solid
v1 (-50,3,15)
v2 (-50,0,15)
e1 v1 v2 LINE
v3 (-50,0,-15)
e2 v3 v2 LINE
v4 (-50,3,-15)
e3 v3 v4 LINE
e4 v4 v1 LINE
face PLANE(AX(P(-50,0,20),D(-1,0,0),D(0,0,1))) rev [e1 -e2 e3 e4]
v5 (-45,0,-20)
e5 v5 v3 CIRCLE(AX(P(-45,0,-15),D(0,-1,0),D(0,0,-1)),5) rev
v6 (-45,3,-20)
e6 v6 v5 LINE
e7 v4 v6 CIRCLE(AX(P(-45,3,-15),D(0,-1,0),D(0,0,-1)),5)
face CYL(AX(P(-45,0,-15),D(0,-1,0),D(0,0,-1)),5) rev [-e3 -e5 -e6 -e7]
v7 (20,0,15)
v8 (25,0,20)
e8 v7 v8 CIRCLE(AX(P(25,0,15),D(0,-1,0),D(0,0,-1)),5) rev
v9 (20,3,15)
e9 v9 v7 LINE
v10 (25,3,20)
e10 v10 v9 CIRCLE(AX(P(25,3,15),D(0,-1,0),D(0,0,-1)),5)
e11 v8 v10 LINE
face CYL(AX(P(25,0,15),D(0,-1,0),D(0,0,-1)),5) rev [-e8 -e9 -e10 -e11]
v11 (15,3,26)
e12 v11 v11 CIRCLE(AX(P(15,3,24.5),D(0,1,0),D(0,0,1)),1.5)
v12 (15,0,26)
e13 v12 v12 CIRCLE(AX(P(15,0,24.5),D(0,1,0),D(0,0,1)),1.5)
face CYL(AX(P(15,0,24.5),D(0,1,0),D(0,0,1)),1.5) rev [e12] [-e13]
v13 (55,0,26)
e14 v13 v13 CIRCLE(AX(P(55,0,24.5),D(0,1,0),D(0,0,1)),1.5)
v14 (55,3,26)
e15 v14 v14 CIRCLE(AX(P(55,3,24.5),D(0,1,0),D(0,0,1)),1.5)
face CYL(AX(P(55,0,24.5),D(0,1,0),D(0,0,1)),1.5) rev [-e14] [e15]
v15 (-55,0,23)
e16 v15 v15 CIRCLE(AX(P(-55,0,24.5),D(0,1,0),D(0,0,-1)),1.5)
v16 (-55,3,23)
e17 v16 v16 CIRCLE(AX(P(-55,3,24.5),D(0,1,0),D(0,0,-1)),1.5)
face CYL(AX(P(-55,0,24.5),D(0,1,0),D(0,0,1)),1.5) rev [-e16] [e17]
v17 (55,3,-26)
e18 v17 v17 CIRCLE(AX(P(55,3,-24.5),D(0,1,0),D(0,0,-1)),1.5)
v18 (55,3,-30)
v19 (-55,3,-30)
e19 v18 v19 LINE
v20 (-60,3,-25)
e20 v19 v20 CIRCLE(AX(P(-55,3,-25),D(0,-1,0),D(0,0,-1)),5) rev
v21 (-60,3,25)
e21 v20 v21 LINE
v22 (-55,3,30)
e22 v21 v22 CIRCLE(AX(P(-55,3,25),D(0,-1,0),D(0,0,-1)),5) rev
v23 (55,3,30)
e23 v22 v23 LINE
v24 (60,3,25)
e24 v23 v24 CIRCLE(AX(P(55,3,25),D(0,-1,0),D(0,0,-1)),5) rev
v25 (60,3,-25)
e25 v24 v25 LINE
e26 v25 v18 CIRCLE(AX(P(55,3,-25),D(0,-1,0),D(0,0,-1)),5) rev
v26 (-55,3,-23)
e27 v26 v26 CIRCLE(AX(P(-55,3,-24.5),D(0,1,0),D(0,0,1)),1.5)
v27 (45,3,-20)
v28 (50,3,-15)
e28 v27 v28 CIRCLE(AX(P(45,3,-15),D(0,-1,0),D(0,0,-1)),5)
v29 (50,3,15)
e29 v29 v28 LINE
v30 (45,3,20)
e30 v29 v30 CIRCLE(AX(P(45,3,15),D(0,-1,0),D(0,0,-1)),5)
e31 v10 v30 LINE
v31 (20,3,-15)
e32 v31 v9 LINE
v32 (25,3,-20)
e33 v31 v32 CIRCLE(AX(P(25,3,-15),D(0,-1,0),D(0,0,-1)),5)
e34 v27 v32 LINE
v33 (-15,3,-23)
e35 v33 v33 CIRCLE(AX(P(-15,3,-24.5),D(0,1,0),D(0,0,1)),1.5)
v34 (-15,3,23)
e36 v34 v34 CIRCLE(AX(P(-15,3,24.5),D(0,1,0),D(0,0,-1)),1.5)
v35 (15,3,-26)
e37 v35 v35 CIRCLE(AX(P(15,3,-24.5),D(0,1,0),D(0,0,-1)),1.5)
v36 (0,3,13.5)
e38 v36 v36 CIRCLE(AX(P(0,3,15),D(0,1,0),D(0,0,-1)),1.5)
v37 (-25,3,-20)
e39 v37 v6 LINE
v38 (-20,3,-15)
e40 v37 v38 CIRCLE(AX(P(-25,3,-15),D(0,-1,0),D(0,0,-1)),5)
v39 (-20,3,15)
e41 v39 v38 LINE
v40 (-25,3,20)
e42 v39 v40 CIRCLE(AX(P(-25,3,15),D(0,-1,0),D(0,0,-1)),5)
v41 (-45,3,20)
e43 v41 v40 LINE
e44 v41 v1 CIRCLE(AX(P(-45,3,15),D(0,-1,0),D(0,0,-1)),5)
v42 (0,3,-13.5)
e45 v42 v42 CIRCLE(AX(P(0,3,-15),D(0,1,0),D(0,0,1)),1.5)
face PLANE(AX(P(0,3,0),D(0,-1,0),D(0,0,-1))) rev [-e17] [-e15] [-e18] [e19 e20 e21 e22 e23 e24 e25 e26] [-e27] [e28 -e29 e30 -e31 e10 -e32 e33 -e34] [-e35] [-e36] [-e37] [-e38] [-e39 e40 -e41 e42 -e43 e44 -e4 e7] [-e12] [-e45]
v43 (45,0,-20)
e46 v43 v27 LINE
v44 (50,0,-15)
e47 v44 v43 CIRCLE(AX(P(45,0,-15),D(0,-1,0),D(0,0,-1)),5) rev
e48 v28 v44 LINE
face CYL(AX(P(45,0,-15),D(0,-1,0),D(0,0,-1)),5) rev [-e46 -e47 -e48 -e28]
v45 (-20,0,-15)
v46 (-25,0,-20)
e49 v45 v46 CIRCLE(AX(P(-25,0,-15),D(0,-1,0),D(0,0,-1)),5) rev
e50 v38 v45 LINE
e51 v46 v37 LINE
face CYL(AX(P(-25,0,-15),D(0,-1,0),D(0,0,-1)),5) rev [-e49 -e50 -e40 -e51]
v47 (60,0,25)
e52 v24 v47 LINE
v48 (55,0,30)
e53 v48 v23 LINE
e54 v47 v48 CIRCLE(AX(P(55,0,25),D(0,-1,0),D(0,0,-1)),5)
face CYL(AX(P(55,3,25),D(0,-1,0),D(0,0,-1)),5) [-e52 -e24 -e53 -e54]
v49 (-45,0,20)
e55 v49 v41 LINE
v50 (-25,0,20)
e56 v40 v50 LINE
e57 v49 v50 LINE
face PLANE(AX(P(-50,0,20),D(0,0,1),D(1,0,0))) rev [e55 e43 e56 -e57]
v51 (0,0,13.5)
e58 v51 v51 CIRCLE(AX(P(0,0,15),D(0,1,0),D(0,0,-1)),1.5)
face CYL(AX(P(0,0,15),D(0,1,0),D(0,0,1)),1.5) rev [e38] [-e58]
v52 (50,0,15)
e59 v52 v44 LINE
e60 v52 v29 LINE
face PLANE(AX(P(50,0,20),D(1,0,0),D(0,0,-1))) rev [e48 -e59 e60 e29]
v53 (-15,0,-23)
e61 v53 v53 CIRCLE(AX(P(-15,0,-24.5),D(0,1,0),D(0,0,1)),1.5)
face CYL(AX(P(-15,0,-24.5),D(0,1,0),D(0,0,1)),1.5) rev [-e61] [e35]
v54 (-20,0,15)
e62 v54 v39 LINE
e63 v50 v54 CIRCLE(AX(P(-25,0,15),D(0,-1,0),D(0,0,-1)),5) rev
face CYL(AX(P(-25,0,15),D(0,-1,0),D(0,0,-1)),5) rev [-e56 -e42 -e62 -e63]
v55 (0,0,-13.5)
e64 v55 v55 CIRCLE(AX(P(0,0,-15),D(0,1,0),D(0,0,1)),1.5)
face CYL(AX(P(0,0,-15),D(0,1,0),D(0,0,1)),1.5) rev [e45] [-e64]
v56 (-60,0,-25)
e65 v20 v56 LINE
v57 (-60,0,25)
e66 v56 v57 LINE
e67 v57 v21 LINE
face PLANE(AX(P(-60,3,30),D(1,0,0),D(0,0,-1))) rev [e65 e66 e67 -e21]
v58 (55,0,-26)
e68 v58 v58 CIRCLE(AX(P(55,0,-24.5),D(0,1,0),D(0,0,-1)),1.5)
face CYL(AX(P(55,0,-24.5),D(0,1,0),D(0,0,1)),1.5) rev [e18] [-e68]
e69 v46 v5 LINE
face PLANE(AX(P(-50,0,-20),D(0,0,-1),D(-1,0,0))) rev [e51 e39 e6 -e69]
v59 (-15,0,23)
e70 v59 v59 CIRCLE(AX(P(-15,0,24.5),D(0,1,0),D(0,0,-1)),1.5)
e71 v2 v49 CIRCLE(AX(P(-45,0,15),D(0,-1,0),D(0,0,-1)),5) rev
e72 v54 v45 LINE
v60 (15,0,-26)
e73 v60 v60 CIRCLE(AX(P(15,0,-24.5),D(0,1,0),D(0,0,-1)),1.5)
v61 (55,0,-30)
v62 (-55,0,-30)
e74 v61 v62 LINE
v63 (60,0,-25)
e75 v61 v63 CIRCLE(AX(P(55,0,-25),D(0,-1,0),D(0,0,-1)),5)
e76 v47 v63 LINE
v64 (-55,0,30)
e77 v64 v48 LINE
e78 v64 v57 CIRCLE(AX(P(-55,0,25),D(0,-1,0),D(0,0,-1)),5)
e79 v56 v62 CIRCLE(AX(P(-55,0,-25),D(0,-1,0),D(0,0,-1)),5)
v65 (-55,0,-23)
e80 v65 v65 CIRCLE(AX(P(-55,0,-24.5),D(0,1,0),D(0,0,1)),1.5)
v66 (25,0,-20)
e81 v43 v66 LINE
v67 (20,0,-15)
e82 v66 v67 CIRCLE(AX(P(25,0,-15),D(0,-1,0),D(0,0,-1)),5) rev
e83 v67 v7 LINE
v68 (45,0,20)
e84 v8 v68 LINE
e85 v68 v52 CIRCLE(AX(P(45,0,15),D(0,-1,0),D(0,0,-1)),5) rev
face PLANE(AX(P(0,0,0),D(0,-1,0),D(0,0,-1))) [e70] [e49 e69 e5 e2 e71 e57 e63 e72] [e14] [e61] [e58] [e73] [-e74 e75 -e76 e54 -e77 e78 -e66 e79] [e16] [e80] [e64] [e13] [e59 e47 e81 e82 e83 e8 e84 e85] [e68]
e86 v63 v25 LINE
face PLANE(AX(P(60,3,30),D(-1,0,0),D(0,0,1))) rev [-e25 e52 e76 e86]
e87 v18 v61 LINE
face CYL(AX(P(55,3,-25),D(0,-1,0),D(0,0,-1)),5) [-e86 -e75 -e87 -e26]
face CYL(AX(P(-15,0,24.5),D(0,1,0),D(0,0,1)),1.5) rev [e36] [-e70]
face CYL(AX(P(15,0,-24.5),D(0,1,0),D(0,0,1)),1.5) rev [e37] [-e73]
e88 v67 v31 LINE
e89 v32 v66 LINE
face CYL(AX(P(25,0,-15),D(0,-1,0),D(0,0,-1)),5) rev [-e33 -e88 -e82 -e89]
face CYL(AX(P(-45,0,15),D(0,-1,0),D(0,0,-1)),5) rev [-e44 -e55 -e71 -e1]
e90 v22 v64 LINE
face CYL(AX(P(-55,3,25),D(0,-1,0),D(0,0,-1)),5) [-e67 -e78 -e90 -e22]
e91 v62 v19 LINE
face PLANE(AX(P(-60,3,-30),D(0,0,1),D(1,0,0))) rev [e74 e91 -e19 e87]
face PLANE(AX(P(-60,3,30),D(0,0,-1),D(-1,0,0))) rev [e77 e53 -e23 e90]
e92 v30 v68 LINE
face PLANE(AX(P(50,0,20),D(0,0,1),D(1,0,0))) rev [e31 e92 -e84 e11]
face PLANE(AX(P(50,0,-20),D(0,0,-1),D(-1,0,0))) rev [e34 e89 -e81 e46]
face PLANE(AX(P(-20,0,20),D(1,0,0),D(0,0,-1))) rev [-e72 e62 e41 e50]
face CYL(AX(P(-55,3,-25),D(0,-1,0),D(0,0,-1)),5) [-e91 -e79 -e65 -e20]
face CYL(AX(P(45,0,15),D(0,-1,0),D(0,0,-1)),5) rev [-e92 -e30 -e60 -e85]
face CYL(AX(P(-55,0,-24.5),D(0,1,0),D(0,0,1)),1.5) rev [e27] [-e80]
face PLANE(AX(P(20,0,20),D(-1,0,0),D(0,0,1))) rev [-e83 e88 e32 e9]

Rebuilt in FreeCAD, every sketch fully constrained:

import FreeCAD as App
import Part
import Sketcher

V = App.Vector


def edges_at(feature, points):
    """Names of the edges that pass closest to the given points."""
    edges = feature.Shape.Edges
    near = lambda p: min(range(len(edges)), key=lambda i: edges[i].distToShape(Part.Vertex(*p))[0])
    return sorted({f"Edge{near(p) + 1}" for p in points})

doc = App.newDocument("Part")
params = doc.addObject("Spreadsheet::Sheet", "Params")
for row, (alias, value) in enumerate([
    ("sketch1_width", "120 mm"),
    ("sketch1_height", "60 mm"),
    ("pad1_length", "3 mm"),
    ("sketch2_diameter", "3 mm"),
    ("sketch3_diameter", "3 mm"),
    ("fillet_radius", "5 mm"),
    ("sketch4_width", "30 mm"),
    ("sketch4_height", "40 mm"),
    ("fillet2_radius", "5 mm"),
], start=1):
    params.set(f"A{row}", alias)
    params.set(f"B{row}", "=" + value)
    params.setAlias(f"B{row}", alias)

body = doc.addObject("PartDesign::Body", "Body")

# Sketch on XZ plane
sketch1 = body.newObject("Sketcher::SketchObject", "Sketch")
sketch1.AttachmentSupport = (doc.getObject("XZ_Plane"), [""])
sketch1.MapMode = "FlatFace"
sketch1.addGeometry([
    Part.LineSegment(V(-60, -30, 0), V(-60, 30, 0)),
    Part.LineSegment(V(-60, 30, 0), V(60, 30, 0)),
    Part.LineSegment(V(60, 30, 0), V(60, -30, 0)),
    Part.LineSegment(V(60, -30, 0), V(-60, -30, 0)),
], False)
sketch1.addConstraint([
    Sketcher.Constraint("Coincident", 0, 2, 1, 1),
    Sketcher.Constraint("Coincident", 1, 2, 2, 1),
    Sketcher.Constraint("Coincident", 2, 2, 3, 1),
    Sketcher.Constraint("Coincident", 3, 2, 0, 1),
    Sketcher.Constraint("Vertical", 0),
    Sketcher.Constraint("Horizontal", 1),
    Sketcher.Constraint("Vertical", 2),
    Sketcher.Constraint("Horizontal", 3),
    Sketcher.Constraint("Symmetric", 0, 2, 2, 2, -1, 1),
    Sketcher.Constraint("DistanceX", 1, 1, 1, 2, 120.0),
    Sketcher.Constraint("DistanceY", 0, 1, 0, 2, 60.0),
])
sketch1.setExpression("Constraints[9]", "Params.sketch1_width")
sketch1.setExpression("Constraints[10]", "Params.sketch1_height")
pad1 = body.newObject("PartDesign::Pad", "Pad")
pad1.Profile = sketch1
pad1.setExpression("Length", "Params.pad1_length")
pad1.Reversed = True

# Sketch on XZ plane
sketch2 = body.newObject("Sketcher::SketchObject", "Sketch001")
sketch2.AttachmentSupport = (doc.getObject("XZ_Plane"), [""])
sketch2.MapMode = "FlatFace"
sketch2.AttachmentOffset = App.Placement(V(0, 0, -3), App.Rotation())
sketch2.addGeometry([
    Part.Circle(V(-55, -24.5, 0), V(0, 0, 1), 1.5),  # 0
    Part.Circle(V(-15, -24.5, 0), V(0, 0, 1), 1.5),  # 1
    Part.Circle(V(-55, 24.5, 0), V(0, 0, 1), 1.5),  # 2
    Part.Circle(V(-15, 24.5, 0), V(0, 0, 1), 1.5),  # 3
    Part.Circle(V(15, 24.5, 0), V(0, 0, 1), 1.5),  # 4
    Part.Circle(V(55, 24.5, 0), V(0, 0, 1), 1.5),  # 5
    Part.Circle(V(15, -24.5, 0), V(0, 0, 1), 1.5),  # 6
    Part.Circle(V(55, -24.5, 0), V(0, 0, 1), 1.5),  # 7
], False)
sketch2.addConstraint([
    Sketcher.Constraint("Equal", 0, 1),
    Sketcher.Constraint("Equal", 1, 2),
    Sketcher.Constraint("Equal", 2, 3),
    Sketcher.Constraint("Equal", 3, 4),
    Sketcher.Constraint("Equal", 4, 5),
    Sketcher.Constraint("Equal", 5, 6),
    Sketcher.Constraint("Equal", 6, 7),
    Sketcher.Constraint("Symmetric", 1, 3, 4, 3, -1, 1),
    Sketcher.Constraint("Symmetric", 0, 3, 5, 3, -1, 1),
    Sketcher.Constraint("Symmetric", 3, 3, 6, 3, -1, 1),
    Sketcher.Constraint("Symmetric", 2, 3, 7, 3, -1, 1),
    Sketcher.Constraint("Symmetric", 3, 3, 4, 3, -2),
    Sketcher.Constraint("Symmetric", 2, 3, 5, 3, -2),
    Sketcher.Constraint("Horizontal", 0, 3, 1, 3),
    Sketcher.Constraint("Diameter", 0, 3.0),
    Sketcher.Constraint("DistanceX", 0, 3, -1, 1, 55.0),
    Sketcher.Constraint("DistanceX", 1, 3, -1, 1, 15.0),
    Sketcher.Constraint("DistanceY", 0, 3, 2, 3, 49.0),
])
sketch2.setExpression("Constraints[14]", "Params.sketch2_diameter")
pocket1 = body.newObject("PartDesign::Pocket", "Pocket")
pocket1.Profile = sketch2
pocket1.Type = "ThroughAll"
pocket1.Reversed = True

# Sketch on XZ plane
sketch3 = body.newObject("Sketcher::SketchObject", "Sketch002")
sketch3.AttachmentSupport = (doc.getObject("XZ_Plane"), [""])
sketch3.MapMode = "FlatFace"
sketch3.AttachmentOffset = App.Placement(V(0, 0, -3), App.Rotation())
sketch3.addGeometry([
    Part.Circle(V(0, -15, 0), V(0, 0, 1), 1.5),
    Part.Circle(V(0, 15, 0), V(0, 0, 1), 1.5),
], False)
sketch3.addConstraint([
    Sketcher.Constraint("Equal", 0, 1),
    Sketcher.Constraint("Symmetric", 0, 3, 1, 3, -1, 1),
    Sketcher.Constraint("PointOnObject", 0, 3, -2),
    Sketcher.Constraint("Diameter", 0, 3.0),
    Sketcher.Constraint("DistanceY", 0, 3, -1, 1, 15.0),
])
sketch3.setExpression("Constraints[3]", "Params.sketch3_diameter")
pocket2 = body.newObject("PartDesign::Pocket", "Pocket001")
pocket2.Profile = sketch3
pocket2.Type = "ThroughAll"
pocket2.Reversed = True
doc.recompute()

fillet = body.newObject("PartDesign::Fillet", "Fillet")
fillet.Base = (pocket2, edges_at(pocket2, [
    (60, 1.5, 30),
    (-60, 1.5, 30),
    (-60, 1.5, -30),
    (60, 1.5, -30),
]))
fillet.setExpression("Radius", "Params.fillet_radius")

# Sketch on XZ plane
sketch4 = body.newObject("Sketcher::SketchObject", "Sketch003")
sketch4.AttachmentSupport = (doc.getObject("XZ_Plane"), [""])
sketch4.MapMode = "FlatFace"
sketch4.AttachmentOffset = App.Placement(V(0, 0, -3), App.Rotation())
sketch4.addGeometry([
    Part.LineSegment(V(20, -20, 0), V(20, 20, 0)),  # 0
    Part.LineSegment(V(20, 20, 0), V(50, 20, 0)),  # 1
    Part.LineSegment(V(50, 20, 0), V(50, -20, 0)),  # 2
    Part.LineSegment(V(50, -20, 0), V(20, -20, 0)),  # 3
    Part.LineSegment(V(-50, -20, 0), V(-50, 20, 0)),  # 4
    Part.LineSegment(V(-50, 20, 0), V(-20, 20, 0)),  # 5
    Part.LineSegment(V(-20, 20, 0), V(-20, -20, 0)),  # 6
    Part.LineSegment(V(-20, -20, 0), V(-50, -20, 0)),  # 7
], False)
sketch4.addConstraint([
    Sketcher.Constraint("Coincident", 0, 2, 1, 1),
    Sketcher.Constraint("Coincident", 1, 2, 2, 1),
    Sketcher.Constraint("Coincident", 2, 2, 3, 1),
    Sketcher.Constraint("Coincident", 3, 2, 0, 1),
    Sketcher.Constraint("Coincident", 4, 2, 5, 1),
    Sketcher.Constraint("Coincident", 5, 2, 6, 1),
    Sketcher.Constraint("Coincident", 6, 2, 7, 1),
    Sketcher.Constraint("Coincident", 7, 2, 4, 1),
    Sketcher.Constraint("Vertical", 0),
    Sketcher.Constraint("Horizontal", 1),
    Sketcher.Constraint("Vertical", 2),
    Sketcher.Constraint("Horizontal", 3),
    Sketcher.Constraint("Vertical", 4),
    Sketcher.Constraint("Horizontal", 5),
    Sketcher.Constraint("Vertical", 6),
    Sketcher.Constraint("Horizontal", 7),
    Sketcher.Constraint("Symmetric", 2, 2, 4, 2, -1, 1),
    Sketcher.Constraint("Symmetric", 0, 2, 6, 2, -1, 1),
    Sketcher.Constraint("Horizontal", 1, 2, 4, 2),
    Sketcher.Constraint("DistanceX", 1, 1, 1, 2, 30.0),
    Sketcher.Constraint("DistanceY", 0, 1, 0, 2, 40.0),
    Sketcher.Constraint("DistanceX", -1, 1, 0, 2, 20.0),
])
sketch4.setExpression("Constraints[19]", "Params.sketch4_width")
sketch4.setExpression("Constraints[20]", "Params.sketch4_height")
pocket3 = body.newObject("PartDesign::Pocket", "Pocket002")
pocket3.Profile = sketch4
pocket3.Type = "ThroughAll"
pocket3.Reversed = True
doc.recompute()

fillet2 = body.newObject("PartDesign::Fillet", "Fillet001")
fillet2.Base = (pocket3, edges_at(pocket3, [
    (50, 1.5, -20),
    (50, 1.5, 20),
    (20, 1.5, 20),
    (20, 1.5, -20),
    (-20, 1.5, -20),
    (-20, 1.5, 20),
    (-50, 1.5, 20),
    (-50, 1.5, -20),
]))
fillet2.setExpression("Radius", "Params.fillet2_radius")

doc.recompute()
